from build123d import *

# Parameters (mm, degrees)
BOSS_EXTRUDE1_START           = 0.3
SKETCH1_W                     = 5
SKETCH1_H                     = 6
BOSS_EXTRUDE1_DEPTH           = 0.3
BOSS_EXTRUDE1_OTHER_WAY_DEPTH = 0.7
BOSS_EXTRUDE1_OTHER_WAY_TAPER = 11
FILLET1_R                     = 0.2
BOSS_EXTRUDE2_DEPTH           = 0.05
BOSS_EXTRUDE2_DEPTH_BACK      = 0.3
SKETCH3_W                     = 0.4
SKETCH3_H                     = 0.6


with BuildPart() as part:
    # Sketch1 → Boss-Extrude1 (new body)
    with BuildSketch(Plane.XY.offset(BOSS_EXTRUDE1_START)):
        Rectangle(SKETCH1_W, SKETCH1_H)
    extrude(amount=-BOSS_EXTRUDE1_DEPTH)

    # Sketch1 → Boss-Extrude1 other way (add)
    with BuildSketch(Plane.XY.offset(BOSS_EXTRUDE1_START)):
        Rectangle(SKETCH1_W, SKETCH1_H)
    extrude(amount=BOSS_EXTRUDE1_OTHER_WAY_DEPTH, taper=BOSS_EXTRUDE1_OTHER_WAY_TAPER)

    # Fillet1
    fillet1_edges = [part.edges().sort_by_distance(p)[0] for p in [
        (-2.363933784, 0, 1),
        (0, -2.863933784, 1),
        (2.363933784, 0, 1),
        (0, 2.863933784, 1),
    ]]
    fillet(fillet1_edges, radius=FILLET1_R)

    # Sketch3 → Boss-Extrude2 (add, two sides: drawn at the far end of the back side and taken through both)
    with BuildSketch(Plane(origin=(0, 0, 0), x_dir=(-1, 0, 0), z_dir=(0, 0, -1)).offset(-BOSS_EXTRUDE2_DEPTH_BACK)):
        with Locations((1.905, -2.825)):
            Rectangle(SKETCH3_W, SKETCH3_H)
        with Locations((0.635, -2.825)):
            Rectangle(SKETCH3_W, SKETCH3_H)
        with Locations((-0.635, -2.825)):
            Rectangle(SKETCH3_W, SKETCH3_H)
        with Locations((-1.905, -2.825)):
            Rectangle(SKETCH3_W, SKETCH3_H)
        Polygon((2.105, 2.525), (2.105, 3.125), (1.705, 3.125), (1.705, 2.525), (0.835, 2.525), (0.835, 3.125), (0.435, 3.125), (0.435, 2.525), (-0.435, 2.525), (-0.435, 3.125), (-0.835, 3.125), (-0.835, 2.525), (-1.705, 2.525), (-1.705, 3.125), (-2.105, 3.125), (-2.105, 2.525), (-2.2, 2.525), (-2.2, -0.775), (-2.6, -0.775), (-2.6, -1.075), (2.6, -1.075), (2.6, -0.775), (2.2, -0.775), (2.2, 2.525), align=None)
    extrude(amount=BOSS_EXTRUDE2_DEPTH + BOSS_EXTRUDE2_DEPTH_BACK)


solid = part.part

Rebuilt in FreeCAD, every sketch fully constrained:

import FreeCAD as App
import Part
import Sketcher

V = App.Vector


def edges_at(feature, points):
    """Names of the edges that pass closest to the given points."""
    edges = feature.Shape.Edges
    near = lambda p: min(range(len(edges)), key=lambda i: edges[i].distToShape(Part.Vertex(*p))[0])
    return sorted({f"Edge{near(p) + 1}" for p in points})

doc = App.newDocument("Part")
body = doc.addObject("PartDesign::Body", "Body")

# Sketch on XY plane
sketch1 = body.newObject("Sketcher::SketchObject", "Sketch")
sketch1.AttachmentSupport = (doc.getObject("XY_Plane"), [""])
sketch1.MapMode = "FlatFace"
sketch1.AttachmentOffset = App.Placement(V(0, 0, 0.3), App.Rotation())
sketch1.addGeometry([
    Part.LineSegment(V(-2.5, 3, 0), V(-2.5, -3, 0)),
    Part.LineSegment(V(-2.5, -3, 0), V(2.5, -3, 0)),
    Part.LineSegment(V(2.5, -3, 0), V(2.5, 3, 0)),
    Part.LineSegment(V(2.5, 3, 0), V(-2.5, 3, 0)),
], False)
sketch1.addConstraint([
    Sketcher.Constraint("Coincident", 0, 2, 1, 1),
    Sketcher.Constraint("Coincident", 1, 2, 2, 1),
    Sketcher.Constraint("Coincident", 2, 2, 3, 1),
    Sketcher.Constraint("Coincident", 3, 2, 0, 1),
    Sketcher.Constraint("Vertical", 0),
    Sketcher.Constraint("Horizontal", 1),
    Sketcher.Constraint("Vertical", 2),
    Sketcher.Constraint("Horizontal", 3),
    Sketcher.Constraint("Symmetric", 0, 2, 2, 2, -1, 1),
    Sketcher.Constraint("DistanceX", 1, 1, 1, 2, 5.0),
    Sketcher.Constraint("DistanceY", 0, 2, 0, 1, 6.0),
])
pad1 = body.newObject("PartDesign::Pad", "Pad")
pad1.Profile = sketch1
pad1.Length = 0.3
pad1.Reversed = True

# Sketch on XY plane
sketch2 = body.newObject("Sketcher::SketchObject", "Sketch001")
sketch2.AttachmentSupport = (doc.getObject("XY_Plane"), [""])
sketch2.MapMode = "FlatFace"
sketch2.AttachmentOffset = App.Placement(V(0, 0, 0.3), App.Rotation())
sketch2.addGeometry([
    Part.LineSegment(V(-2.5, 3, 0), V(-2.5, -3, 0)),
    Part.LineSegment(V(-2.5, -3, 0), V(2.5, -3, 0)),
    Part.LineSegment(V(2.5, -3, 0), V(2.5, 3, 0)),
    Part.LineSegment(V(2.5, 3, 0), V(-2.5, 3, 0)),
], False)
sketch2.addConstraint([
    Sketcher.Constraint("Coincident", 0, 2, 1, 1),
    Sketcher.Constraint("Coincident", 1, 2, 2, 1),
    Sketcher.Constraint("Coincident", 2, 2, 3, 1),
    Sketcher.Constraint("Coincident", 3, 2, 0, 1),
    Sketcher.Constraint("Vertical", 0),
    Sketcher.Constraint("Horizontal", 1),
    Sketcher.Constraint("Vertical", 2),
    Sketcher.Constraint("Horizontal", 3),
    Sketcher.Constraint("Symmetric", 0, 2, 2, 2, -1, 1),
    Sketcher.Constraint("DistanceX", 1, 1, 1, 2, 5.0),
    Sketcher.Constraint("DistanceY", 0, 2, 0, 1, 6.0),
])
pad2 = body.newObject("PartDesign::Pad", "Pad001")
pad2.Profile = sketch2
pad2.Length = 0.7
pad2.TaperAngle = -11
doc.recompute()

fillet = body.newObject("PartDesign::Fillet", "Fillet")
fillet.Base = (pad2, edges_at(pad2, [
    (-2.364, 0, 1),
    (0, -2.864, 1),
    (2.364, 0, 1),
    (0, 2.864, 1),
]))
fillet.Radius = 0.2

# Sketch on XY plane
sketch3 = body.newObject("Sketcher::SketchObject", "Sketch002")
sketch3.AttachmentSupport = (doc.getObject("XY_Plane"), [""])
sketch3.MapMode = "FlatFace"
sketch3.addGeometry([
    Part.LineSegment(V(-1.705, -2.525, 0), V(-1.705, -3.125, 0)),  # 0
    Part.LineSegment(V(-1.705, -3.125, 0), V(-2.105, -3.125, 0)),  # 1
    Part.LineSegment(V(-2.105, -3.125, 0), V(-2.105, -2.525, 0)),  # 2
    Part.LineSegment(V(-2.105, -2.525, 0), V(-1.705, -2.525, 0)),  # 3
    Part.LineSegment(V(-0.435, -2.525, 0), V(-0.435, -3.125, 0)),  # 4
    Part.LineSegment(V(-0.435, -3.125, 0), V(-0.835, -3.125, 0)),  # 5
    Part.LineSegment(V(-0.835, -3.125, 0), V(-0.835, -2.525, 0)),  # 6
    Part.LineSegment(V(-0.835, -2.525, 0), V(-0.435, -2.525, 0)),  # 7
    Part.LineSegment(V(0.835, -2.525, 0), V(0.835, -3.125, 0)),  # 8
    Part.LineSegment(V(0.835, -3.125, 0), V(0.435, -3.125, 0)),  # 9
    Part.LineSegment(V(0.435, -3.125, 0), V(0.435, -2.525, 0)),  # 10
    Part.LineSegment(V(0.435, -2.525, 0), V(0.835, -2.525, 0)),  # 11
    Part.LineSegment(V(2.105, -2.525, 0), V(2.105, -3.125, 0)),  # 12
    Part.LineSegment(V(2.105, -3.125, 0), V(1.705, -3.125, 0)),  # 13
    Part.LineSegment(V(1.705, -3.125, 0), V(1.705, -2.525, 0)),  # 14
    Part.LineSegment(V(1.705, -2.525, 0), V(2.105, -2.525, 0)),  # 15
    Part.LineSegment(V(-2.105, 2.525, 0), V(-2.105, 3.125, 0)),  # 16
    Part.LineSegment(V(-2.105, 3.125, 0), V(-1.705, 3.125, 0)),  # 17
    Part.LineSegment(V(-1.705, 3.125, 0), V(-1.705, 2.525, 0)),  # 18
    Part.LineSegment(V(-1.705, 2.525, 0), V(-0.835, 2.525, 0)),  # 19
    Part.LineSegment(V(-0.835, 2.525, 0), V(-0.835, 3.125, 0)),  # 20
    Part.LineSegment(V(-0.835, 3.125, 0), V(-0.435, 3.125, 0)),  # 21
    Part.LineSegment(V(-0.435, 3.125, 0), V(-0.435, 2.525, 0)),  # 22
    Part.LineSegment(V(-0.435, 2.525, 0), V(0.435, 2.525, 0)),  # 23
    Part.LineSegment(V(0.435, 2.525, 0), V(0.435, 3.125, 0)),  # 24
    Part.LineSegment(V(0.435, 3.125, 0), V(0.835, 3.125, 0)),  # 25
    Part.LineSegment(V(0.835, 3.125, 0), V(0.835, 2.525, 0)),  # 26
    Part.LineSegment(V(0.835, 2.525, 0), V(1.705, 2.525, 0)),  # 27
    Part.LineSegment(V(1.705, 2.525, 0), V(1.705, 3.125, 0)),  # 28
    Part.LineSegment(V(1.705, 3.125, 0), V(2.105, 3.125, 0)),  # 29
    Part.LineSegment(V(2.105, 3.125, 0), V(2.105, 2.525, 0)),  # 30
    Part.LineSegment(V(2.105, 2.525, 0), V(2.2, 2.525, 0)),  # 31
    Part.LineSegment(V(2.2, 2.525, 0), V(2.2, -0.775, 0)),  # 32
    Part.LineSegment(V(2.2, -0.775, 0), V(2.6, -0.775, 0)),  # 33
    Part.LineSegment(V(2.6, -0.775, 0), V(2.6, -1.075, 0)),  # 34
    Part.LineSegment(V(2.6, -1.075, 0), V(-2.6, -1.075, 0)),  # 35
    Part.LineSegment(V(-2.6, -1.075, 0), V(-2.6, -0.775, 0)),  # 36
    Part.LineSegment(V(-2.6, -0.775, 0), V(-2.2, -0.775, 0)),  # 37
    Part.LineSegment(V(-2.2, -0.775, 0), V(-2.2, 2.525, 0)),  # 38
    Part.LineSegment(V(-2.2, 2.525, 0), V(-2.105, 2.525, 0)),  # 39
], False)
sketch3.addConstraint([
    Sketcher.Constraint("Coincident", 0, 2, 1, 1),
    Sketcher.Constraint("Coincident", 1, 2, 2, 1),
    Sketcher.Constraint("Coincident", 2, 2, 3, 1),
    Sketcher.Constraint("Coincident", 3, 2, 0, 1),
    Sketcher.Constraint("Coincident", 4, 2, 5, 1),
    Sketcher.Constraint("Coincident", 5, 2, 6, 1),
    Sketcher.Constraint("Coincident", 6, 2, 7, 1),
    Sketcher.Constraint("Coincident", 7, 2, 4, 1),
    Sketcher.Constraint("Coincident", 8, 2, 9, 1),
    Sketcher.Constraint("Coincident", 9, 2, 10, 1),
    Sketcher.Constraint("Coincident", 10, 2, 11, 1),
    Sketcher.Constraint("Coincident", 11, 2, 8, 1),
    Sketcher.Constraint("Coincident", 12, 2, 13, 1),
    Sketcher.Constraint("Coincident", 13, 2, 14, 1),
    Sketcher.Constraint("Coincident", 14, 2, 15, 1),
    Sketcher.Constraint("Coincident", 15, 2, 12, 1),
    Sketcher.Constraint("Coincident", 16, 2, 17, 1),
    Sketcher.Constraint("Coincident", 17, 2, 18, 1),
    Sketcher.Constraint("Coincident", 18, 2, 19, 1),
    Sketcher.Constraint("Coincident", 19, 2, 20, 1),
    Sketcher.Constraint("Coincident", 20, 2, 21, 1),
    Sketcher.Constraint("Coincident", 21, 2, 22, 1),
    Sketcher.Constraint("Coincident", 22, 2, 23, 1),
    Sketcher.Constraint("Coincident", 23, 2, 24, 1),
    Sketcher.Constraint("Coincident", 24, 2, 25, 1),
    Sketcher.Constraint("Coincident", 25, 2, 26, 1),
    Sketcher.Constraint("Coincident", 26, 2, 27, 1),
    Sketcher.Constraint("Coincident", 27, 2, 28, 1),
    Sketcher.Constraint("Coincident", 28, 2, 29, 1),
    Sketcher.Constraint("Coincident", 29, 2, 30, 1),
    Sketcher.Constraint("Coincident", 30, 2, 31, 1),
    Sketcher.Constraint("Coincident", 31, 2, 32, 1),
    Sketcher.Constraint("Coincident", 32, 2, 33, 1),
    Sketcher.Constraint("Coincident", 33, 2, 34, 1),
    Sketcher.Constraint("Coincident", 34, 2, 35, 1),
    Sketcher.Constraint("Coincident", 35, 2, 36, 1),
    Sketcher.Constraint("Coincident", 36, 2, 37, 1),
    Sketcher.Constraint("Coincident", 37, 2, 38, 1),
    Sketcher.Constraint("Coincident", 38, 2, 39, 1),
    Sketcher.Constraint("Coincident", 39, 2, 16, 1),
    Sketcher.Constraint("Vertical", 0),
    Sketcher.Constraint("Horizontal", 1),
    Sketcher.Constraint("Vertical", 2),
    Sketcher.Constraint("Horizontal", 3),
    Sketcher.Constraint("Vertical", 4),
    Sketcher.Constraint("Horizontal", 5),
    Sketcher.Constraint("Vertical", 6),
    Sketcher.Constraint("Horizontal", 7),
    Sketcher.Constraint("Vertical", 8),
    Sketcher.Constraint("Horizontal", 9),
    Sketcher.Constraint("Vertical", 10),
    Sketcher.Constraint("Horizontal", 11),
    Sketcher.Constraint("Vertical", 12),
    Sketcher.Constraint("Horizontal", 13),
    Sketcher.Constraint("Vertical", 14),
    Sketcher.Constraint("Horizontal", 15),
    Sketcher.Constraint("Vertical", 16),
    Sketcher.Constraint("Horizontal", 17),
    Sketcher.Constraint("Vertical", 18),
    Sketcher.Constraint("Horizontal", 19),
    Sketcher.Constraint("Vertical", 20),
    Sketcher.Constraint("Horizontal", 21),
    Sketcher.Constraint("Vertical", 22),
    Sketcher.Constraint("Horizontal", 23),
    Sketcher.Constraint("Vertical", 24),
    Sketcher.Constraint("Horizontal", 25),
    Sketcher.Constraint("Vertical", 26),
    Sketcher.Constraint("Horizontal", 27),
    Sketcher.Constraint("Vertical", 28),
    Sketcher.Constraint("Horizontal", 29),
    Sketcher.Constraint("Vertical", 30),
    Sketcher.Constraint("Horizontal", 31),
    Sketcher.Constraint("Vertical", 32),
    Sketcher.Constraint("Horizontal", 33),
    Sketcher.Constraint("Vertical", 34),
    Sketcher.Constraint("Horizontal", 35),
    Sketcher.Constraint("Vertical", 36),
    Sketcher.Constraint("Horizontal", 37),
    Sketcher.Constraint("Vertical", 38),
    Sketcher.Constraint("Horizontal", 39),
    Sketcher.Constraint("Symmetric", 12, 2, 16, 2, -1, 1),
    Sketcher.Constraint("Symmetric", 14, 2, 18, 2, -1, 1),
    Sketcher.Constraint("Symmetric", 11, 2, 19, 2, -1, 1),
    Sketcher.Constraint("Symmetric", 9, 2, 21, 2, -1, 1),
    Sketcher.Constraint("Symmetric", 7, 2, 23, 2, -1, 1),
    Sketcher.Constraint("Symmetric", 5, 2, 25, 2, -1, 1),
    Sketcher.Constraint("Symmetric", 3, 2, 27, 2, -1, 1),
    Sketcher.Constraint("Symmetric", 1, 2, 29, 2, -1, 1),
    Sketcher.Constraint("Symmetric", 5, 2, 8, 2, -2),
    Sketcher.Constraint("Symmetric", 7, 2, 10, 2, -2),
    Sketcher.Constraint("Symmetric", 1, 2, 12, 2, -2),
    Sketcher.Constraint("Symmetric", 3, 2, 14, 2, -2),
    Sketcher.Constraint("Symmetric", 33, 2, 36, 2, -2),
    Sketcher.Constraint("Symmetric", 31, 2, 38, 2, -2),
    Sketcher.Constraint("Horizontal", 1, 2, 4, 2),
    Sketcher.Constraint("Horizontal", 27, 2, 30, 2),
    Sketcher.Constraint("Equal", 3, 5),
    Sketcher.Constraint("Equal", 19, 23),
    Sketcher.Constraint("Equal", 29, 33),
    Sketcher.Constraint("DistanceX", 1, 2, 1, 1, 0.4),
    Sketcher.Constraint("DistanceX", 35, 2, 35, 1, 5.2),
    Sketcher.Constraint("DistanceY", 0, 2, 0, 1, 0.6),
    Sketcher.Constraint("DistanceY", 32, 2, 32, 1, 3.3),
    Sketcher.Constraint("DistanceY", 34, 2, 34, 1, 0.3),
    Sketcher.Constraint("DistanceX", 19, 1, 19, 2, 0.87),
    Sketcher.Constraint("DistanceY", 2, 2, 16, 2, 5.65),
])
pad3 = body.newObject("PartDesign::Pad", "Pad002")
pad3.Profile = sketch3
pad3.Type = "TwoLengths"
pad3.Length = 0.05
pad3.Length2 = 0.3
pad3.Reversed = True

doc.recompute()
